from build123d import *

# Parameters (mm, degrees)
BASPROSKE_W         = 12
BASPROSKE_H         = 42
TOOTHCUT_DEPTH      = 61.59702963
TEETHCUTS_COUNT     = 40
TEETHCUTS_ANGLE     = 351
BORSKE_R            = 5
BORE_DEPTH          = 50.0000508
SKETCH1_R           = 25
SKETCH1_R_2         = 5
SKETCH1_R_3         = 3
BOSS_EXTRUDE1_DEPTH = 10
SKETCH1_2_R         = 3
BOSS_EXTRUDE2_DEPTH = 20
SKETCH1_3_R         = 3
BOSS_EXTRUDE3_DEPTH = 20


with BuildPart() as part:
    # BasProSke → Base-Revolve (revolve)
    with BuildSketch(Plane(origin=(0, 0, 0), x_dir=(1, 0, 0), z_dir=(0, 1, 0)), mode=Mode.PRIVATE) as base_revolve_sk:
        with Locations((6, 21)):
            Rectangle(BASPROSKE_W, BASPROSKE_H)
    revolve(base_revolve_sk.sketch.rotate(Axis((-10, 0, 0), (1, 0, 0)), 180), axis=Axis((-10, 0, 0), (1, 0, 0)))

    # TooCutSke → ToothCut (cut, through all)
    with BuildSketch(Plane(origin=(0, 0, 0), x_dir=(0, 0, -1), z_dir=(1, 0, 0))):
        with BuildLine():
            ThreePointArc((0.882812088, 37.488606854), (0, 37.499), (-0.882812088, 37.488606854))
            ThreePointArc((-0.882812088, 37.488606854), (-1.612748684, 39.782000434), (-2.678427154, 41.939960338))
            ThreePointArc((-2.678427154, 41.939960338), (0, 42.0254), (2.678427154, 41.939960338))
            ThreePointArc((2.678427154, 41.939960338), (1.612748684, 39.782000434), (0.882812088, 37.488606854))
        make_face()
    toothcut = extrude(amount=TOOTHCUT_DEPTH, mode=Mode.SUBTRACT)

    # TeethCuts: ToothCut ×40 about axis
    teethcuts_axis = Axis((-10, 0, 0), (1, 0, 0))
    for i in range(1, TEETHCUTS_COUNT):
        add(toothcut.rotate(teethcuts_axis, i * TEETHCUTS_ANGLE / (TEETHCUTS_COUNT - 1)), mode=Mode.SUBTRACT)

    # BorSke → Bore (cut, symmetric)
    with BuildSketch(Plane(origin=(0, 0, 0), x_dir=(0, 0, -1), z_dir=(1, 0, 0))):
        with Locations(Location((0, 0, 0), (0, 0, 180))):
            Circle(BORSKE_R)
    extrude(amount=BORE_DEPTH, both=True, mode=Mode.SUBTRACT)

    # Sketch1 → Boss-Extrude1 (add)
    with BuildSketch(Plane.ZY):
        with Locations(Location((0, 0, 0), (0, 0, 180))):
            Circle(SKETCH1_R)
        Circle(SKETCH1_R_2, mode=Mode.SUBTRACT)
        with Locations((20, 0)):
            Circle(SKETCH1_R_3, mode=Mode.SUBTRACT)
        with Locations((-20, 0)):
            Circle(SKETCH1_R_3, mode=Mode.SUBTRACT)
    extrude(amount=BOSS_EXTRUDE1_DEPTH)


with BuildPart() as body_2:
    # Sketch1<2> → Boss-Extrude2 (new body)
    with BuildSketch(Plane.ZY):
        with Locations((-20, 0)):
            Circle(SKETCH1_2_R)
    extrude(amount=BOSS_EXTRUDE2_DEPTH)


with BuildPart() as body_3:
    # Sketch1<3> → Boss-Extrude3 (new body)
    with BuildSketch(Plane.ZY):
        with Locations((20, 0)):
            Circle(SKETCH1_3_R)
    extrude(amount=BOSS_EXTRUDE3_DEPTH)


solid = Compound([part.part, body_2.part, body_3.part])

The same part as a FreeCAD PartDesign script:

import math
import FreeCAD as App
import Part
import Sketcher
from FreeCAD import Vector

doc = App.newDocument("Part")
params = doc.addObject("Spreadsheet::Sheet", "Params")
for row, (alias, value) in enumerate([
    ("sketch1_width", "12 mm"),
    ("sketch1_height", "42 mm"),
    ("revolution_angle", "360 deg"),
    ("sketch2_radius", "16 mm"),
    ("sketch3_diameter", "10 mm"),
    ("pocket2_length", "100.000102 mm"),
    ("sketch4_diameter", "50 mm"),
    ("sketch4_diameter2", "6 mm"),
    ("sketch4_diameter3", "10 mm"),
    ("pad1_length", "10 mm"),
    ("sketch5_diameter", "6 mm"),
    ("pad2_length", "20 mm"),
    ("sketch6_diameter", "6 mm"),
    ("pad3_length", "20 mm"),
], start=1):
    params.set(f"A{row}", alias)
    params.set(f"B{row}", "=" + value)
    params.setAlias(f"B{row}", alias)

body = doc.addObject("PartDesign::Body", "Body")

sketch1 = body.newObject("Sketcher::SketchObject", "Sketch")
sketch1.AttachmentSupport = (doc.getObject("XZ_Plane"), [""])
sketch1.MapMode = "FlatFace"
sketch1.addGeometry([
    Part.LineSegment(Vector(0, -42, 0), Vector(0, 0, 0)),
    Part.LineSegment(Vector(0, 0, 0), Vector(12, 0, 0)),
    Part.LineSegment(Vector(12, 0, 0), Vector(12, -42, 0)),
    Part.LineSegment(Vector(12, -42, 0), Vector(0, -42, 0)),
], False)
sketch1.addConstraint([
    Sketcher.Constraint("Coincident", 0, 2, 1, 1),
    Sketcher.Constraint("Coincident", 1, 2, 2, 1),
    Sketcher.Constraint("Coincident", 2, 2, 3, 1),
    Sketcher.Constraint("Coincident", 3, 2, 0, 1),
    Sketcher.Constraint("Vertical", 0),
    Sketcher.Constraint("Horizontal", 1),
    Sketcher.Constraint("Vertical", 2),
    Sketcher.Constraint("Horizontal", 3),
    Sketcher.Constraint("Coincident", 0, 2, -1, 1),
    Sketcher.Constraint("DistanceX", 1, 1, 1, 2, 12.0),
    Sketcher.Constraint("DistanceY", 0, 1, 0, 2, 42.0),
])
sketch1.setExpression("Constraints[9]", "Params.sketch1_width")
sketch1.setExpression("Constraints[10]", "Params.sketch1_height")
revolution = body.newObject("PartDesign::Revolution", "Revolution")
revolution.Profile = sketch1
revolution.ReferenceAxis = (sketch1, ["H_Axis"])
revolution.setExpression("Angle", "Params.revolution_angle")

sketch2 = body.newObject("Sketcher::SketchObject", "Sketch001")
sketch2.AttachmentSupport = (doc.getObject("YZ_Plane"), [""])
sketch2.MapMode = "FlatFace"
sketch2.addGeometry([
    Part.ArcOfCircle(Part.Circle(Vector(-0.000002, 0, 0), Vector(0, 0, 1), 37.499002), math.radians(-1.348998), math.radians(1.348998)),
    Part.ArcOfCircle(Part.Circle(Vector(33.796459, -16.450986, 0), Vector(0, 0, 1), 16), math.radians(59.40483), math.radians(76.658223)),
    Part.ArcOfCircle(Part.Circle(Vector(0, 0, 0), Vector(0, 0, 1), 42.0254), math.radians(-3.654139), math.radians(3.654139)),
    Part.ArcOfCircle(Part.Circle(Vector(33.796459, 16.450986, 0), Vector(0, 0, 1), 16), math.radians(-76.658223), math.radians(-59.40483)),
], False)
sketch2.addConstraint([
    Sketcher.Constraint("Coincident", 0, 1, 1, 2),
    Sketcher.Constraint("Coincident", 1, 1, 2, 1),
    Sketcher.Constraint("Coincident", 2, 2, 3, 2),
    Sketcher.Constraint("Coincident", 3, 1, 0, 2),
    Sketcher.Constraint("Coincident", 0, 3, -1, 1),
    Sketcher.Constraint("Coincident", 2, 3, -1, 1),
    Sketcher.Constraint("Equal", 1, 3),
    Sketcher.Constraint("Symmetric", 1, 3, 3, 3, -1),
    Sketcher.Constraint("Radius", 1, 16.0),
    Sketcher.Constraint("Radius", 0, 37.499002),
    Sketcher.Constraint("Radius", 2, 42.0254),
    Sketcher.Constraint("DistanceY", 0, 1, 3, 3, 17.333798),
    Sketcher.Constraint("DistanceX", 1, 3, 1, 1, 8.143502),
])
sketch2.setExpression("Constraints[8]", "Params.sketch2_radius")
pocket1 = body.newObject("PartDesign::Pocket", "Pocket")
pocket1.Profile = sketch2
pocket1.Type = "ThroughAll"
pocket1.Reversed = True
doc.recompute()

polarpattern = body.newObject("PartDesign::PolarPattern", "PolarPattern")
polarpattern.Originals = [pocket1]
polarpattern.Axis = (doc.getObject("X_Axis"), [""])
polarpattern.Angle = 360
polarpattern.Occurrences = 40
body.Tip = polarpattern

sketch3 = body.newObject("Sketcher::SketchObject", "Sketch002")
sketch3.AttachmentSupport = (doc.getObject("YZ_Plane"), [""])
sketch3.MapMode = "FlatFace"
sketch3.addGeometry(Part.Circle(Vector(0, 0, 0), Vector(0, 0, 1), 5), False)
sketch3.addConstraint([
    Sketcher.Constraint("Coincident", 0, 3, -1, 1),
    Sketcher.Constraint("Diameter", 0, 10.0),
])
sketch3.setExpression("Constraints[1]", "Params.sketch3_diameter")
pocket2 = body.newObject("PartDesign::Pocket", "Pocket001")
pocket2.Profile = sketch3
pocket2.setExpression("Length", "Params.pocket2_length")
pocket2.Midplane = True

sketch4 = body.newObject("Sketcher::SketchObject", "Sketch003")
sketch4.AttachmentSupport = (doc.getObject("YZ_Plane"), [""])
sketch4.MapMode = "FlatFace"
sketch4.addGeometry([
    Part.Circle(Vector(0, 0, 0), Vector(0, 0, 1), 25),
    Part.Circle(Vector(0, 20, 0), Vector(0, 0, 1), 3),
    Part.Circle(Vector(0, 0, 0), Vector(0, 0, 1), 5),
    Part.Circle(Vector(0, -20, 0), Vector(0, 0, 1), 3),
], False)
sketch4.addConstraint([
    Sketcher.Constraint("Coincident", 0, 3, -1, 1),
    Sketcher.Constraint("Coincident", 2, 3, -1, 1),
    Sketcher.Constraint("Equal", 1, 3),
    Sketcher.Constraint("Symmetric", 1, 3, 3, 3, -1, 1),
    Sketcher.Constraint("PointOnObject", 1, 3, -2),
    Sketcher.Constraint("Diameter", 0, 50.0),
    Sketcher.Constraint("Diameter", 1, 6.0),
    Sketcher.Constraint("Diameter", 2, 10.0),
    Sketcher.Constraint("DistanceY", -1, 1, 1, 3, 20.0),
])
sketch4.setExpression("Constraints[5]", "Params.sketch4_diameter")
sketch4.setExpression("Constraints[6]", "Params.sketch4_diameter2")
sketch4.setExpression("Constraints[7]", "Params.sketch4_diameter3")
pad1 = body.newObject("PartDesign::Pad", "Pad")
pad1.Profile = sketch4
pad1.setExpression("Length", "Params.pad1_length")
pad1.Reversed = True
body2 = doc.addObject("PartDesign::Body", "Body001")

sketch5 = body2.newObject("Sketcher::SketchObject", "Sketch004")
sketch5.AttachmentSupport = (doc.getObject("YZ_Plane001"), [""])
sketch5.MapMode = "FlatFace"
sketch5.addGeometry(Part.Circle(Vector(0, -20, 0), Vector(0, 0, 1), 3), False)
sketch5.addConstraint([
    Sketcher.Constraint("PointOnObject", 0, 3, -2),
    Sketcher.Constraint("Diameter", 0, 6.0),
    Sketcher.Constraint("DistanceY", 0, 3, -1, 1, 20.0),
])
sketch5.setExpression("Constraints[1]", "Params.sketch5_diameter")
pad2 = body2.newObject("PartDesign::Pad", "Pad001")
pad2.Profile = sketch5
pad2.setExpression("Length", "Params.pad2_length")
pad2.Reversed = True
body3 = doc.addObject("PartDesign::Body", "Body002")

sketch6 = body3.newObject("Sketcher::SketchObject", "Sketch005")
sketch6.AttachmentSupport = (doc.getObject("YZ_Plane002"), [""])
sketch6.MapMode = "FlatFace"
sketch6.addGeometry(Part.Circle(Vector(0, 20, 0), Vector(0, 0, 1), 3), False)
sketch6.addConstraint([
    Sketcher.Constraint("PointOnObject", 0, 3, -2),
    Sketcher.Constraint("Diameter", 0, 6.0),
    Sketcher.Constraint("DistanceY", -1, 1, 0, 3, 20.0),
])
sketch6.setExpression("Constraints[1]", "Params.sketch6_diameter")
pad3 = body3.newObject("PartDesign::Pad", "Pad002")
pad3.Profile = sketch6
pad3.setExpression("Length", "Params.pad3_length")
pad3.Reversed = True

doc.recompute()
